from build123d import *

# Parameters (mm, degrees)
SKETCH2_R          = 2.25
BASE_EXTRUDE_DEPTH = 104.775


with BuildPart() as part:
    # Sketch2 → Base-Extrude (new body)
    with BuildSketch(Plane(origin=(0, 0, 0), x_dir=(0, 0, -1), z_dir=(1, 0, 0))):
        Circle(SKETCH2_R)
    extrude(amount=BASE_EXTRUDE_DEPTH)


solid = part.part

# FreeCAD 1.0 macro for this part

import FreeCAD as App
import Part
import Sketcher

doc = App.newDocument("Part")
body = doc.addObject("PartDesign::Body", "Body")

sketch1 = body.newObject("Sketcher::SketchObject", "Sketch")
sketch1.AttachmentSupport = (doc.getObject("YZ_Plane"), [""])
sketch1.MapMode = "FlatFace"
sketch1.addGeometry(Part.Circle(App.Vector(0, 0, 0), App.Vector(0, 0, 1), 2.25), False)
sketch1.addConstraint(Sketcher.Constraint("Coincident", 0, 3, -1, 1))
sketch1.addConstraint(Sketcher.Constraint("Diameter", 0, 4.5))
pad1 = body.newObject("PartDesign::Pad", "Pad")
pad1.Profile = sketch1
pad1.Length = 104.775

doc.recompute()
